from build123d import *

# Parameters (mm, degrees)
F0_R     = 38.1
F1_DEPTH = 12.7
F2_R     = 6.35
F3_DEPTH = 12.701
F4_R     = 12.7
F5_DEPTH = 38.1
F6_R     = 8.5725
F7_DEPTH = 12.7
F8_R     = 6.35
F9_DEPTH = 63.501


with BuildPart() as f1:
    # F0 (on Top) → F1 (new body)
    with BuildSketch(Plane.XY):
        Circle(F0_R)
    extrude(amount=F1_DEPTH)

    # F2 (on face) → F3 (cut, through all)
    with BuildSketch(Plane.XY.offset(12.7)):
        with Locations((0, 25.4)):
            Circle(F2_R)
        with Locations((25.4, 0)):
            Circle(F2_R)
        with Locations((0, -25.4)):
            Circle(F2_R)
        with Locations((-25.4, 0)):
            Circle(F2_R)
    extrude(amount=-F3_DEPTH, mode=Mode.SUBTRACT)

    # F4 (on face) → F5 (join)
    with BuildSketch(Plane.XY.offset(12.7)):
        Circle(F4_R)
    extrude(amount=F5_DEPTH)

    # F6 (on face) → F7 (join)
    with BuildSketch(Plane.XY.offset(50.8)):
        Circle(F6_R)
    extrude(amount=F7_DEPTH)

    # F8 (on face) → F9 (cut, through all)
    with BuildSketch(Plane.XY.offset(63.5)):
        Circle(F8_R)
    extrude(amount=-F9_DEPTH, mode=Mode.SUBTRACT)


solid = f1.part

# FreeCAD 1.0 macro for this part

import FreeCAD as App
import Part
import Sketcher
from FreeCAD import Vector
Q = App.Units.Quantity

doc = App.newDocument("Part")
body = doc.addObject("PartDesign::Body", "Body")

# Sketch on XY plane
sketch1 = body.newObject("Sketcher::SketchObject", "Sketch")
sketch1.AttachmentSupport = (doc.getObject("XY_Plane"), [""])
sketch1.MapMode = "FlatFace"
sketch1.addGeometry(Part.Circle(Vector(0, 0, 0), Vector(0, 0, 1), 38), False)
sketch1.addConstraint(Sketcher.Constraint("Coincident", 0, 3, -1, 1))
sketch1.addConstraint(Sketcher.Constraint("Diameter", 0, Q("3 in")))
pad1 = body.newObject("PartDesign::Pad", "Pad")
pad1.Profile = sketch1
pad1.Length = Q("0.5 in")

# Sketch on XY plane
sketch2 = body.newObject("Sketcher::SketchObject", "Sketch001")
sketch2.AttachmentSupport = (doc.getObject("XY_Plane"), [""])
sketch2.MapMode = "FlatFace"
sketch2.AttachmentOffset = App.Placement(Vector(0, 0, 0.5 * 25.4), App.Rotation())
sketch2.addGeometry(Part.Circle(Vector(0, 25, 0), Vector(0, 0, 1), 6), False)
sketch2.addGeometry(Part.Circle(Vector(25, 0, 0), Vector(0, 0, 1), 6), False)
sketch2.addGeometry(Part.Circle(Vector(0, -25, 0), Vector(0, 0, 1), 6), False)
sketch2.addGeometry(Part.Circle(Vector(-25, 0, 0), Vector(0, 0, 1), 6), False)
sketch2.addConstraint(Sketcher.Constraint("Equal", 0, 1))
sketch2.addConstraint(Sketcher.Constraint("Equal", 1, 2))
sketch2.addConstraint(Sketcher.Constraint("Equal", 2, 3))
sketch2.addConstraint(Sketcher.Constraint("Symmetric", 0, 3, 2, 3, -1, 1))
sketch2.addConstraint(Sketcher.Constraint("Symmetric", 1, 3, 3, 3, -1, 1))
sketch2.addConstraint(Sketcher.Constraint("PointOnObject", 0, 3, -2))
sketch2.addConstraint(Sketcher.Constraint("PointOnObject", 1, 3, -1))
sketch2.addConstraint(Sketcher.Constraint("Diameter", 0, Q("0.5 in")))
sketch2.addConstraint(Sketcher.Constraint("DistanceY", -1, 1, 0, 3, Q("1 in")))
sketch2.addConstraint(Sketcher.Constraint("DistanceX", -1, 1, 1, 3, Q("1 in")))
pocket1 = body.newObject("PartDesign::Pocket", "Pocket")
pocket1.Profile = sketch2
pocket1.Type = "ThroughAll"

# Sketch on XY plane
sketch3 = body.newObject("Sketcher::SketchObject", "Sketch002")
sketch3.AttachmentSupport = (doc.getObject("XY_Plane"), [""])
sketch3.MapMode = "FlatFace"
sketch3.AttachmentOffset = App.Placement(Vector(0, 0, 0.5 * 25.4), App.Rotation())
sketch3.addGeometry(Part.Circle(Vector(0, 0, 0), Vector(0, 0, 1), 13), False)
sketch3.addConstraint(Sketcher.Constraint("Coincident", 0, 3, -1, 1))
sketch3.addConstraint(Sketcher.Constraint("Diameter", 0, Q("1 in")))
pad2 = body.newObject("PartDesign::Pad", "Pad001")
pad2.Profile = sketch3
pad2.Length = Q("1.5 in")

# Sketch on XY plane
sketch4 = body.newObject("Sketcher::SketchObject", "Sketch003")
sketch4.AttachmentSupport = (doc.getObject("XY_Plane"), [""])
sketch4.MapMode = "FlatFace"
sketch4.AttachmentOffset = App.Placement(Vector(0, 0, 2 * 25.4), App.Rotation())
sketch4.addGeometry(Part.Circle(Vector(0, 0, 0), Vector(0, 0, 1), 9), False)
sketch4.addConstraint(Sketcher.Constraint("Coincident", 0, 3, -1, 1))
sketch4.addConstraint(Sketcher.Constraint("Diameter", 0, Q("0.675 in")))
pad3 = body.newObject("PartDesign::Pad", "Pad002")
pad3.Profile = sketch4
pad3.Length = Q("0.5 in")

# Sketch on XY plane
sketch5 = body.newObject("Sketcher::SketchObject", "Sketch004")
sketch5.AttachmentSupport = (doc.getObject("XY_Plane"), [""])
sketch5.MapMode = "FlatFace"
sketch5.AttachmentOffset = App.Placement(Vector(0, 0, 2.5 * 25.4), App.Rotation())
sketch5.addGeometry(Part.Circle(Vector(0, 0, 0), Vector(0, 0, 1), 6), False)
sketch5.addConstraint(Sketcher.Constraint("Coincident", 0, 3, -1, 1))
sketch5.addConstraint(Sketcher.Constraint("Diameter", 0, Q("0.5 in")))
pocket2 = body.newObject("PartDesign::Pocket", "Pocket001")
pocket2.Profile = sketch5
pocket2.Type = "ThroughAll"

doc.recompute()
